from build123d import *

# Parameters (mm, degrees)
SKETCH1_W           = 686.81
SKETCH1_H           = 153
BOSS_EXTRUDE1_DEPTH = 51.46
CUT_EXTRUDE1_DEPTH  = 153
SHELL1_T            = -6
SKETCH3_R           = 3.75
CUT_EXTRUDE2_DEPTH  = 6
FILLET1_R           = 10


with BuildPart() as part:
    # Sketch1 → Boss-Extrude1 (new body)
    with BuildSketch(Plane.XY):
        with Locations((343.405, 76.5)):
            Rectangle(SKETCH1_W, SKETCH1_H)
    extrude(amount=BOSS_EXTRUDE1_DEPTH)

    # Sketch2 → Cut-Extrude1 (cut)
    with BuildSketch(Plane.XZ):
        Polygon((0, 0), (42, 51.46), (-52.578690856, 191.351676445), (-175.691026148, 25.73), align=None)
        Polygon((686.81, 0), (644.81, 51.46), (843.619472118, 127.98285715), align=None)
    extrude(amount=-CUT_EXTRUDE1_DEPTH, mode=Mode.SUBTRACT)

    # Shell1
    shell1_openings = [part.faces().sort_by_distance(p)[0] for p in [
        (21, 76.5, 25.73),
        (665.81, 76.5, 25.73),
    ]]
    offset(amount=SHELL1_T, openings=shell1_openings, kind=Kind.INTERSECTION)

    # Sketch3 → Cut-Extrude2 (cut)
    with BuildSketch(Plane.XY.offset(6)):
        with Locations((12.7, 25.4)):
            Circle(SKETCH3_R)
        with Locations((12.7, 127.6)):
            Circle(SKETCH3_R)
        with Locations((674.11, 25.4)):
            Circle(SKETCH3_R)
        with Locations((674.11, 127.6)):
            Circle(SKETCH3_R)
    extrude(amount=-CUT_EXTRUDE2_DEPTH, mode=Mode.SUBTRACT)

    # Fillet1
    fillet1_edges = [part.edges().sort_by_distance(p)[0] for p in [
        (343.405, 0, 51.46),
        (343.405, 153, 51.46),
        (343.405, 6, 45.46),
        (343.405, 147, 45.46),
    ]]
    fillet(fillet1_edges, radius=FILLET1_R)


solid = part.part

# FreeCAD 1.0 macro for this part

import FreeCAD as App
import Part
import Sketcher
from FreeCAD import Vector


def edges_at(feature, points):
    """Names of the edges that pass closest to the given points."""
    edges = feature.Shape.Edges
    near = lambda p: min(range(len(edges)), key=lambda i: edges[i].distToShape(Part.Vertex(*p))[0])
    return sorted({f"Edge{near(p) + 1}" for p in points})


def faces_at(feature, points):
    """Names of the faces that lie closest to the given points."""
    faces = feature.Shape.Faces
    near = lambda p: min(range(len(faces)), key=lambda i: faces[i].distToShape(Part.Vertex(*p))[0])
    return sorted({f"Face{near(p) + 1}" for p in points})


def add_polygon(sketch, points):
    """Adds a closed chain of lines whose ends are joined by coincident constraints."""
    first, n = sketch.GeometryCount, len(points)
    for a, b in zip(points, points[1:] + points[:1]):
        sketch.addGeometry(Part.LineSegment(App.Vector(*a, 0), App.Vector(*b, 0)), False)
    for i in range(n):
        sketch.addConstraint(Sketcher.Constraint("Coincident", first + i, 2, first + (i + 1) % n, 1))

doc = App.newDocument("Part")
params = doc.addObject("Spreadsheet::Sheet", "Params")
for row, (alias, value) in enumerate([
    ("sketch1_height", "153 mm"),
    ("sketch1_width", "686.81 mm"),
    ("pad1_length", "51.46 mm"),
    ("pocket1_length", "153 mm"),
    ("thickness_wall", "6 mm"),
    ("sketch3_diameter", "7.5 mm"),
    ("pocket2_length", "6 mm"),
    ("fillet_radius", "10 mm"),
], start=1):
    params.set(f"A{row}", alias)
    params.set(f"B{row}", "=" + value)
    params.setAlias(f"B{row}", alias)

body = doc.addObject("PartDesign::Body", "Body")

# Sketch on XY plane
sketch1 = body.newObject("Sketcher::SketchObject", "Sketch")
sketch1.AttachmentSupport = (doc.getObject("XY_Plane"), [""])
sketch1.MapMode = "FlatFace"
add_polygon(sketch1, [(0, 153), (0, 0), (687, 0), (687, 153)])  # lines 0-3
sketch1.addConstraint(Sketcher.Constraint("Vertical", 0))
sketch1.addConstraint(Sketcher.Constraint("Horizontal", 1))
sketch1.addConstraint(Sketcher.Constraint("Vertical", 2))
sketch1.addConstraint(Sketcher.Constraint("Horizontal", 3))
sketch1.addConstraint(Sketcher.Constraint("Coincident", 0, 2, -1, 1))
sketch1.addConstraint(Sketcher.Constraint("DistanceY", 0, 2, 0, 1, 153.0))
sketch1.addConstraint(Sketcher.Constraint("DistanceX", 1, 1, 1, 2, 686.81))
sketch1.setExpression("Constraints[9]", "Params.sketch1_height")
sketch1.setExpression("Constraints[10]", "Params.sketch1_width")
pad1 = body.newObject("PartDesign::Pad", "Pad")
pad1.Profile = sketch1
pad1.setExpression("Length", "Params.pad1_length")

# Sketch on XZ plane
sketch2 = body.newObject("Sketcher::SketchObject", "Sketch001")
sketch2.AttachmentSupport = (doc.getObject("XZ_Plane"), [""])
sketch2.MapMode = "FlatFace"
add_polygon(sketch2, [(0, 0), (42, 51), (-53, 191), (-176, 26)])  # lines 0-3
add_polygon(sketch2, [(645, 51), (687, 0), (844, 128)])  # lines 4-6
sketch2.addConstraint(Sketcher.Constraint("Coincident", 3, 2, -1, 1))
sketch2.addConstraint(Sketcher.Constraint("PointOnObject", 4, 2, -1))
sketch2.addConstraint(Sketcher.Constraint("Perpendicular", 4, 5))
sketch2.addConstraint(Sketcher.Constraint("Horizontal", 0, 2, 6, 2))
sketch2.addConstraint(Sketcher.Constraint("Equal", 0, 4))
sketch2.addConstraint(Sketcher.Constraint("DistanceX", -1, 1, 0, 2, 42.0))
sketch2.addConstraint(Sketcher.Constraint("DistanceY", -1, 1, 0, 2, 51.46))
sketch2.addConstraint(Sketcher.Constraint("DistanceY", -1, 1, 2, 2, 25.73))
sketch2.addConstraint(Sketcher.Constraint("DistanceX", -1, 1, 4, 2, 686.81))
sketch2.addConstraint(Sketcher.Constraint("DistanceX", 2, 2, 5, 2, 1019.310498))
sketch2.addConstraint(Sketcher.Constraint("Distance", 6, 213.028059))
sketch2.addConstraint(Sketcher.Constraint("DistanceX", 1, 2, -1, 1, 52.578691))
sketch2.addConstraint(Sketcher.Constraint("DistanceY", 5, 2, 1, 2, 63.368819))
pocket1 = body.newObject("PartDesign::Pocket", "Pocket")
pocket1.Profile = sketch2
pocket1.setExpression("Length", "Params.pocket1_length")
doc.recompute()

thickness = body.newObject("PartDesign::Thickness", "Thickness")
thickness.Base = (pocket1, faces_at(pocket1, [(21, 76.5, 25.73), (665.81, 76.5, 25.73)]))
thickness.setExpression("Value", "Params.thickness_wall")
thickness.Reversed = True
thickness.Join = "Intersection"

# Sketch on XY plane
sketch3 = body.newObject("Sketcher::SketchObject", "Sketch002")
sketch3.AttachmentSupport = (doc.getObject("XY_Plane"), [""])
sketch3.MapMode = "FlatFace"
sketch3.AttachmentOffset = App.Placement(Vector(0, 0, 6), App.Rotation())
sketch3.addGeometry(Part.Circle(Vector(12.7, 25.4, 0), Vector(0, 0, 1), 3.8), False)
sketch3.addGeometry(Part.Circle(Vector(12.7, 127.6, 0), Vector(0, 0, 1), 3.8), False)
sketch3.addGeometry(Part.Circle(Vector(674.1, 25.4, 0), Vector(0, 0, 1), 3.8), False)
sketch3.addGeometry(Part.Circle(Vector(674.1, 127.6, 0), Vector(0, 0, 1), 3.8), False)
sketch3.addConstraint(Sketcher.Constraint("Equal", 0, 1))
sketch3.addConstraint(Sketcher.Constraint("Equal", 1, 2))
sketch3.addConstraint(Sketcher.Constraint("Equal", 2, 3))
sketch3.addConstraint(Sketcher.Constraint("Horizontal", 0, 3, 2, 3))
sketch3.addConstraint(Sketcher.Constraint("Horizontal", 1, 3, 3, 3))
sketch3.addConstraint(Sketcher.Constraint("Vertical", 0, 3, 1, 3))
sketch3.addConstraint(Sketcher.Constraint("Vertical", 2, 3, 3, 3))
sketch3.addConstraint(Sketcher.Constraint("Diameter", 0, 7.5))
sketch3.addConstraint(Sketcher.Constraint("DistanceX", -1, 1, 0, 3, 12.7))
sketch3.addConstraint(Sketcher.Constraint("DistanceY", -1, 1, 0, 3, 25.4))
sketch3.addConstraint(Sketcher.Constraint("DistanceY", -1, 1, 1, 3, 127.6))
sketch3.addConstraint(Sketcher.Constraint("DistanceX", -1, 1, 2, 3, 674.11))
sketch3.setExpression("Constraints[7]", "Params.sketch3_diameter")
pocket2 = body.newObject("PartDesign::Pocket", "Pocket001")
pocket2.Profile = sketch3
pocket2.setExpression("Length", "Params.pocket2_length")
doc.recompute()

fillet = body.newObject("PartDesign::Fillet", "Fillet")
fillet.Base = (pocket2, edges_at(pocket2, [
    (343.405, 0, 51.46),
    (343.405, 153, 51.46),
    (343.405, 6, 45.46),
    (343.405, 147, 45.46),
]))
fillet.setExpression("Radius", "Params.fillet_radius")

doc.recompute()
